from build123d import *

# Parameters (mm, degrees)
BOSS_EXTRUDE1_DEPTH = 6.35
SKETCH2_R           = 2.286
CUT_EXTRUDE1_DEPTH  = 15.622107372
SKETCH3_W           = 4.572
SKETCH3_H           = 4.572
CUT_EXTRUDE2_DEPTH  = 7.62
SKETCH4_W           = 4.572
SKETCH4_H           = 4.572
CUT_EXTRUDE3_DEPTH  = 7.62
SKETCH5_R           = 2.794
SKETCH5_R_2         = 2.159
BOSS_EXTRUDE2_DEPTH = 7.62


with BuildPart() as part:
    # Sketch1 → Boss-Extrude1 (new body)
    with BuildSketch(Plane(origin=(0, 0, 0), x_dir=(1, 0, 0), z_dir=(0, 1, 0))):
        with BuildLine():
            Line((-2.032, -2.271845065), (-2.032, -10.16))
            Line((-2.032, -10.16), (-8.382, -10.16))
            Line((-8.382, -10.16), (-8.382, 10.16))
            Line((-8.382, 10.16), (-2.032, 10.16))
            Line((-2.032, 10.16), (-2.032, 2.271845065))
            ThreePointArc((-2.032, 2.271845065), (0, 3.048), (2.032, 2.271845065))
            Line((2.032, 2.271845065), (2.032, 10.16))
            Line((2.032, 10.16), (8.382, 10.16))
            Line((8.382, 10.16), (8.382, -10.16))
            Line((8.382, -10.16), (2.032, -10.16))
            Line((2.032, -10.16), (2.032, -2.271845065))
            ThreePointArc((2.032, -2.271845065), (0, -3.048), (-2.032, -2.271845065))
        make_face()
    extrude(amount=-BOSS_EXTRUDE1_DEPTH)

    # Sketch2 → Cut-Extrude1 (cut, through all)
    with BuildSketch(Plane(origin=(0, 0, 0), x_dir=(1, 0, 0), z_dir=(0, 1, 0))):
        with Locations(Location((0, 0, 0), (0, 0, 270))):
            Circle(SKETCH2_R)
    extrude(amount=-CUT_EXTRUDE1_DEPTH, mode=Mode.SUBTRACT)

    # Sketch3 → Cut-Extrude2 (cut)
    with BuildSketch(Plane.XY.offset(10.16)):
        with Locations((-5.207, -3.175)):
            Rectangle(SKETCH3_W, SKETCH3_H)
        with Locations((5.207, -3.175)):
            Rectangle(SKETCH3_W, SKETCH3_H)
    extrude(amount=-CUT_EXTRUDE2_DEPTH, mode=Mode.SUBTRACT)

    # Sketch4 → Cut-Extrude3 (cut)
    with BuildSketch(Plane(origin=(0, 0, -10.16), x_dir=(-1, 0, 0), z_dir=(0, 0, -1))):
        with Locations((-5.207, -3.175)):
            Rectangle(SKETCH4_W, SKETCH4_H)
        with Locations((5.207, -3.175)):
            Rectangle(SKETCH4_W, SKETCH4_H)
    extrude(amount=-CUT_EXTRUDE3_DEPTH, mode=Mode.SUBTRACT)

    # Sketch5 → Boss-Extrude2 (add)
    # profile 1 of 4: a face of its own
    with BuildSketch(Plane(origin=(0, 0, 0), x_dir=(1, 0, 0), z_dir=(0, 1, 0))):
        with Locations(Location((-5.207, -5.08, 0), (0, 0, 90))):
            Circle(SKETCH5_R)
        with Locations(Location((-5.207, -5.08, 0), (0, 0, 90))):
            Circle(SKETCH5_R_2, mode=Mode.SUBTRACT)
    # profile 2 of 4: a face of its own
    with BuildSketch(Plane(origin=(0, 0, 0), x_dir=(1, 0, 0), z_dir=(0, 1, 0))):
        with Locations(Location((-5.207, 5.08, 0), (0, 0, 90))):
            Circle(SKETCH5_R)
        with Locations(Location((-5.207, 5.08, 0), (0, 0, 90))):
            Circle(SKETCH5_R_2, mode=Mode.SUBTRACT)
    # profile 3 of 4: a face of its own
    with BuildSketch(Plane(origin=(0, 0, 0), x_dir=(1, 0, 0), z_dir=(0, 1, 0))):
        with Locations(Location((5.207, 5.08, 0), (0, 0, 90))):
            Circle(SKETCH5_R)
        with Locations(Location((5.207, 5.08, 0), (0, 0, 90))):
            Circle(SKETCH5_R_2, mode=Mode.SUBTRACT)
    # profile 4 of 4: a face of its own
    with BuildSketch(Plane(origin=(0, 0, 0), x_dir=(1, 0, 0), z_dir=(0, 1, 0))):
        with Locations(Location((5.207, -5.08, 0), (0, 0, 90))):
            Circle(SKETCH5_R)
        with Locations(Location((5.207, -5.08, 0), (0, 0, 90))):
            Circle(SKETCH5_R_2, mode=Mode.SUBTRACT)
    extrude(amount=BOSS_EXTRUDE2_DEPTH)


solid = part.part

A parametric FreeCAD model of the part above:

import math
import FreeCAD as App
import Part
import Sketcher

V = App.Vector
Q = App.Units.Quantity

doc = App.newDocument("Part")
body = doc.addObject("PartDesign::Body", "Body")

# Sketch on XZ plane
sketch1 = body.newObject("Sketcher::SketchObject", "Sketch")
sketch1.AttachmentSupport = (doc.getObject("XZ_Plane"), [""])
sketch1.MapMode = "FlatFace"
sketch1.addGeometry([
    Part.LineSegment(V(-2, 10.2, 0), V(-2, 2.3, 0)),  # 0
    Part.ArcOfCircle(Part.Circle(V(0, 0, 0), V(0, 0, 1), 3), math.radians(48), math.radians(132)),  # 1
    Part.LineSegment(V(2, 2.3, 0), V(2, 10.2, 0)),  # 2
    Part.LineSegment(V(2, 10.2, 0), V(8.4, 10.2, 0)),  # 3
    Part.LineSegment(V(8.4, 10.2, 0), V(8.4, -10.2, 0)),  # 4
    Part.LineSegment(V(8.4, -10.2, 0), V(2, -10.2, 0)),  # 5
    Part.LineSegment(V(2, -10.2, 0), V(2, -2.3, 0)),  # 6
    Part.ArcOfCircle(Part.Circle(V(0, 0, 0), V(0, 0, 1), 3), math.radians(-132), math.radians(-48)),  # 7
    Part.LineSegment(V(-2, -2.3, 0), V(-2, -10.2, 0)),  # 8
    Part.LineSegment(V(-2, -10.2, 0), V(-8.4, -10.2, 0)),  # 9
    Part.LineSegment(V(-8.4, -10.2, 0), V(-8.4, 10.2, 0)),  # 10
    Part.LineSegment(V(-8.4, 10.2, 0), V(-2, 10.2, 0)),  # 11
], False)
sketch1.addConstraint([
    Sketcher.Constraint("Coincident", 0, 2, 1, 2),
    Sketcher.Constraint("Coincident", 1, 1, 2, 1),
    Sketcher.Constraint("Coincident", 2, 2, 3, 1),
    Sketcher.Constraint("Coincident", 3, 2, 4, 1),
    Sketcher.Constraint("Coincident", 4, 2, 5, 1),
    Sketcher.Constraint("Coincident", 5, 2, 6, 1),
    Sketcher.Constraint("Coincident", 6, 2, 7, 2),
    Sketcher.Constraint("Coincident", 7, 1, 8, 1),
    Sketcher.Constraint("Coincident", 8, 2, 9, 1),
    Sketcher.Constraint("Coincident", 9, 2, 10, 1),
    Sketcher.Constraint("Coincident", 10, 2, 11, 1),
    Sketcher.Constraint("Coincident", 11, 2, 0, 1),
    Sketcher.Constraint("Vertical", 0),
    Sketcher.Constraint("Vertical", 2),
    Sketcher.Constraint("Horizontal", 3),
    Sketcher.Constraint("Vertical", 4),
    Sketcher.Constraint("Horizontal", 5),
    Sketcher.Constraint("Vertical", 6),
    Sketcher.Constraint("Vertical", 8),
    Sketcher.Constraint("Horizontal", 9),
    Sketcher.Constraint("Vertical", 10),
    Sketcher.Constraint("Horizontal", 11),
    Sketcher.Constraint("Coincident", 1, 3, -1, 1),
    Sketcher.Constraint("Coincident", 7, 3, -1, 1),
    Sketcher.Constraint("Equal", 1, 7),
    Sketcher.Constraint("Symmetric", 2, 2, 8, 2, -1, 1),
    Sketcher.Constraint("Symmetric", 4, 2, 10, 2, -1, 1),
    Sketcher.Constraint("Symmetric", 5, 2, 8, 2, -2),
    Sketcher.Constraint("Horizontal", 0, 2, 1, 1),
    Sketcher.Constraint("Radius", 1, Q("0.12 in")),
    Sketcher.Constraint("DistanceY", 4, 2, 4, 1, Q("0.8 in")),
    Sketcher.Constraint("DistanceX", 3, 1, 3, 2, Q("0.25 in")),
    Sketcher.Constraint("DistanceX", 0, 2, -1, 1, Q("0.08 in")),
])
pad1 = body.newObject("PartDesign::Pad", "Pad")
pad1.Profile = sketch1
pad1.Length = Q("0.25 in")

# Sketch on XZ plane
sketch2 = body.newObject("Sketcher::SketchObject", "Sketch001")
sketch2.AttachmentSupport = (doc.getObject("XZ_Plane"), [""])
sketch2.MapMode = "FlatFace"
sketch2.addGeometry(Part.Circle(V(0, 0, 0), V(0, 0, 1), 2.3), False)
sketch2.addConstraint([
    Sketcher.Constraint("Coincident", 0, 3, -1, 1),
    Sketcher.Constraint("Diameter", 0, Q("0.18 in")),
])
pocket1 = body.newObject("PartDesign::Pocket", "Pocket")
pocket1.Profile = sketch2
pocket1.Type = "ThroughAll"
pocket1.Reversed = True

# Sketch on XY plane
sketch3 = body.newObject("Sketcher::SketchObject", "Sketch002")
sketch3.AttachmentSupport = (doc.getObject("XY_Plane"), [""])
sketch3.MapMode = "FlatFace"
sketch3.AttachmentOffset = App.Placement(V(0, 0, 0.4 * 25.4), App.Rotation())
sketch3.addGeometry([
    Part.LineSegment(V(-7.5, -0.9, 0), V(-7.5, -5.5, 0)),  # 0
    Part.LineSegment(V(-7.5, -5.5, 0), V(-2.9, -5.5, 0)),  # 1
    Part.LineSegment(V(-2.9, -5.5, 0), V(-2.9, -0.9, 0)),  # 2
    Part.LineSegment(V(-2.9, -0.9, 0), V(-7.5, -0.9, 0)),  # 3
    Part.LineSegment(V(2.9, -0.9, 0), V(2.9, -5.5, 0)),  # 4
    Part.LineSegment(V(2.9, -5.5, 0), V(7.5, -5.5, 0)),  # 5
    Part.LineSegment(V(7.5, -5.5, 0), V(7.5, -0.9, 0)),  # 6
    Part.LineSegment(V(7.5, -0.9, 0), V(2.9, -0.9, 0)),  # 7
], False)
sketch3.addConstraint([
    Sketcher.Constraint("Coincident", 0, 2, 1, 1),
    Sketcher.Constraint("Coincident", 1, 2, 2, 1),
    Sketcher.Constraint("Coincident", 2, 2, 3, 1),
    Sketcher.Constraint("Coincident", 3, 2, 0, 1),
    Sketcher.Constraint("Coincident", 4, 2, 5, 1),
    Sketcher.Constraint("Coincident", 5, 2, 6, 1),
    Sketcher.Constraint("Coincident", 6, 2, 7, 1),
    Sketcher.Constraint("Coincident", 7, 2, 4, 1),
    Sketcher.Constraint("Vertical", 0),
    Sketcher.Constraint("Horizontal", 1),
    Sketcher.Constraint("Vertical", 2),
    Sketcher.Constraint("Horizontal", 3),
    Sketcher.Constraint("Vertical", 4),
    Sketcher.Constraint("Horizontal", 5),
    Sketcher.Constraint("Vertical", 6),
    Sketcher.Constraint("Horizontal", 7),
    Sketcher.Constraint("Symmetric", 1, 2, 4, 2, -2),
    Sketcher.Constraint("Symmetric", 3, 2, 6, 2, -2),
    Sketcher.Constraint("Equal", 7, 0),
    Sketcher.Constraint("DistanceX", 1, 1, 1, 2, Q("0.18 in")),
    Sketcher.Constraint("DistanceX", 1, 2, 4, 2, Q("0.23 in")),
    Sketcher.Constraint("DistanceY", 0, 2, -1, 1, Q("0.215 in")),
])
pocket2 = body.newObject("PartDesign::Pocket", "Pocket001")
pocket2.Profile = sketch3
pocket2.Length = Q("0.3 in")

# Sketch on XY plane
sketch4 = body.newObject("Sketcher::SketchObject", "Sketch003")
sketch4.AttachmentSupport = (doc.getObject("XY_Plane"), [""])
sketch4.MapMode = "FlatFace"
sketch4.AttachmentOffset = App.Placement(V(0, 0, -0.4 * 25.4), App.Rotation())
sketch4.addGeometry([
    Part.LineSegment(V(7.5, -0.9, 0), V(7.5, -5.5, 0)),  # 0
    Part.LineSegment(V(7.5, -5.5, 0), V(2.9, -5.5, 0)),  # 1
    Part.LineSegment(V(2.9, -5.5, 0), V(2.9, -0.9, 0)),  # 2
    Part.LineSegment(V(2.9, -0.9, 0), V(7.5, -0.9, 0)),  # 3
    Part.LineSegment(V(-2.9, -0.9, 0), V(-2.9, -5.5, 0)),  # 4
    Part.LineSegment(V(-2.9, -5.5, 0), V(-7.5, -5.5, 0)),  # 5
    Part.LineSegment(V(-7.5, -5.5, 0), V(-7.5, -0.9, 0)),  # 6
    Part.LineSegment(V(-7.5, -0.9, 0), V(-2.9, -0.9, 0)),  # 7
], False)
sketch4.addConstraint([
    Sketcher.Constraint("Coincident", 0, 2, 1, 1),
    Sketcher.Constraint("Coincident", 1, 2, 2, 1),
    Sketcher.Constraint("Coincident", 2, 2, 3, 1),
    Sketcher.Constraint("Coincident", 3, 2, 0, 1),
    Sketcher.Constraint("Coincident", 4, 2, 5, 1),
    Sketcher.Constraint("Coincident", 5, 2, 6, 1),
    Sketcher.Constraint("Coincident", 6, 2, 7, 1),
    Sketcher.Constraint("Coincident", 7, 2, 4, 1),
    Sketcher.Constraint("Vertical", 0),
    Sketcher.Constraint("Horizontal", 1),
    Sketcher.Constraint("Vertical", 2),
    Sketcher.Constraint("Horizontal", 3),
    Sketcher.Constraint("Vertical", 4),
    Sketcher.Constraint("Horizontal", 5),
    Sketcher.Constraint("Vertical", 6),
    Sketcher.Constraint("Horizontal", 7),
    Sketcher.Constraint("Symmetric", 1, 2, 4, 2, -2),
    Sketcher.Constraint("Symmetric", 3, 2, 6, 2, -2),
    Sketcher.Constraint("Equal", 7, 0),
    Sketcher.Constraint("DistanceX", 1, 2, 1, 1, Q("0.18 in")),
    Sketcher.Constraint("DistanceX", 4, 2, 1, 2, Q("0.23 in")),
    Sketcher.Constraint("DistanceY", 0, 2, -1, 1, Q("0.215 in")),
])
pocket3 = body.newObject("PartDesign::Pocket", "Pocket002")
pocket3.Profile = sketch4
pocket3.Length = Q("0.3 in")
pocket3.Reversed = True

# Sketch on XZ plane
sketch5 = body.newObject("Sketcher::SketchObject", "Sketch004")
sketch5.AttachmentSupport = (doc.getObject("XZ_Plane"), [""])
sketch5.MapMode = "FlatFace"
sketch5.addGeometry([
    Part.Circle(V(-5.2, 5.1, 0), V(0, 0, 1), 2.8),  # 0
    Part.Circle(V(-5.2, 5.1, 0), V(0, 0, 1), 2.2),  # 1
    Part.Circle(V(-5.2, -5.1, 0), V(0, 0, 1), 2.8),  # 2
    Part.Circle(V(-5.2, -5.1, 0), V(0, 0, 1), 2.2),  # 3
    Part.Circle(V(5.2, -5.1, 0), V(0, 0, 1), 2.8),  # 4
    Part.Circle(V(5.2, -5.1, 0), V(0, 0, 1), 2.2),  # 5
    Part.Circle(V(5.2, 5.1, 0), V(0, 0, 1), 2.8),  # 6
    Part.Circle(V(5.2, 5.1, 0), V(0, 0, 1), 2.2),  # 7
], False)
sketch5.addConstraint([
    Sketcher.Constraint("Coincident", 1, 3, 0, 3),
    Sketcher.Constraint("Coincident", 3, 3, 2, 3),
    Sketcher.Constraint("Coincident", 5, 3, 4, 3),
    Sketcher.Constraint("Coincident", 7, 3, 6, 3),
    Sketcher.Constraint("Equal", 0, 2),
    Sketcher.Constraint("Equal", 1, 3),
    Sketcher.Constraint("Equal", 2, 4),
    Sketcher.Constraint("Equal", 3, 5),
    Sketcher.Constraint("Equal", 4, 6),
    Sketcher.Constraint("Equal", 5, 7),
    Sketcher.Constraint("Symmetric", 0, 3, 4, 3, -1, 1),
    Sketcher.Constraint("Symmetric", 2, 3, 6, 3, -1, 1),
    Sketcher.Constraint("Symmetric", 2, 3, 4, 3, -2),
    Sketcher.Constraint("Diameter", 0, Q("0.22 in")),
    Sketcher.Constraint("Diameter", 1, Q("0.17 in")),
    Sketcher.Constraint("DistanceY", -1, 1, 0, 3, Q("0.2 in")),
    Sketcher.Constraint("DistanceX", 2, 3, 4, 3, Q("0.41 in")),
])
pad2 = body.newObject("PartDesign::Pad", "Pad001")
pad2.Profile = sketch5
pad2.Length = Q("0.3 in")
pad2.Reversed = True

doc.recompute()
